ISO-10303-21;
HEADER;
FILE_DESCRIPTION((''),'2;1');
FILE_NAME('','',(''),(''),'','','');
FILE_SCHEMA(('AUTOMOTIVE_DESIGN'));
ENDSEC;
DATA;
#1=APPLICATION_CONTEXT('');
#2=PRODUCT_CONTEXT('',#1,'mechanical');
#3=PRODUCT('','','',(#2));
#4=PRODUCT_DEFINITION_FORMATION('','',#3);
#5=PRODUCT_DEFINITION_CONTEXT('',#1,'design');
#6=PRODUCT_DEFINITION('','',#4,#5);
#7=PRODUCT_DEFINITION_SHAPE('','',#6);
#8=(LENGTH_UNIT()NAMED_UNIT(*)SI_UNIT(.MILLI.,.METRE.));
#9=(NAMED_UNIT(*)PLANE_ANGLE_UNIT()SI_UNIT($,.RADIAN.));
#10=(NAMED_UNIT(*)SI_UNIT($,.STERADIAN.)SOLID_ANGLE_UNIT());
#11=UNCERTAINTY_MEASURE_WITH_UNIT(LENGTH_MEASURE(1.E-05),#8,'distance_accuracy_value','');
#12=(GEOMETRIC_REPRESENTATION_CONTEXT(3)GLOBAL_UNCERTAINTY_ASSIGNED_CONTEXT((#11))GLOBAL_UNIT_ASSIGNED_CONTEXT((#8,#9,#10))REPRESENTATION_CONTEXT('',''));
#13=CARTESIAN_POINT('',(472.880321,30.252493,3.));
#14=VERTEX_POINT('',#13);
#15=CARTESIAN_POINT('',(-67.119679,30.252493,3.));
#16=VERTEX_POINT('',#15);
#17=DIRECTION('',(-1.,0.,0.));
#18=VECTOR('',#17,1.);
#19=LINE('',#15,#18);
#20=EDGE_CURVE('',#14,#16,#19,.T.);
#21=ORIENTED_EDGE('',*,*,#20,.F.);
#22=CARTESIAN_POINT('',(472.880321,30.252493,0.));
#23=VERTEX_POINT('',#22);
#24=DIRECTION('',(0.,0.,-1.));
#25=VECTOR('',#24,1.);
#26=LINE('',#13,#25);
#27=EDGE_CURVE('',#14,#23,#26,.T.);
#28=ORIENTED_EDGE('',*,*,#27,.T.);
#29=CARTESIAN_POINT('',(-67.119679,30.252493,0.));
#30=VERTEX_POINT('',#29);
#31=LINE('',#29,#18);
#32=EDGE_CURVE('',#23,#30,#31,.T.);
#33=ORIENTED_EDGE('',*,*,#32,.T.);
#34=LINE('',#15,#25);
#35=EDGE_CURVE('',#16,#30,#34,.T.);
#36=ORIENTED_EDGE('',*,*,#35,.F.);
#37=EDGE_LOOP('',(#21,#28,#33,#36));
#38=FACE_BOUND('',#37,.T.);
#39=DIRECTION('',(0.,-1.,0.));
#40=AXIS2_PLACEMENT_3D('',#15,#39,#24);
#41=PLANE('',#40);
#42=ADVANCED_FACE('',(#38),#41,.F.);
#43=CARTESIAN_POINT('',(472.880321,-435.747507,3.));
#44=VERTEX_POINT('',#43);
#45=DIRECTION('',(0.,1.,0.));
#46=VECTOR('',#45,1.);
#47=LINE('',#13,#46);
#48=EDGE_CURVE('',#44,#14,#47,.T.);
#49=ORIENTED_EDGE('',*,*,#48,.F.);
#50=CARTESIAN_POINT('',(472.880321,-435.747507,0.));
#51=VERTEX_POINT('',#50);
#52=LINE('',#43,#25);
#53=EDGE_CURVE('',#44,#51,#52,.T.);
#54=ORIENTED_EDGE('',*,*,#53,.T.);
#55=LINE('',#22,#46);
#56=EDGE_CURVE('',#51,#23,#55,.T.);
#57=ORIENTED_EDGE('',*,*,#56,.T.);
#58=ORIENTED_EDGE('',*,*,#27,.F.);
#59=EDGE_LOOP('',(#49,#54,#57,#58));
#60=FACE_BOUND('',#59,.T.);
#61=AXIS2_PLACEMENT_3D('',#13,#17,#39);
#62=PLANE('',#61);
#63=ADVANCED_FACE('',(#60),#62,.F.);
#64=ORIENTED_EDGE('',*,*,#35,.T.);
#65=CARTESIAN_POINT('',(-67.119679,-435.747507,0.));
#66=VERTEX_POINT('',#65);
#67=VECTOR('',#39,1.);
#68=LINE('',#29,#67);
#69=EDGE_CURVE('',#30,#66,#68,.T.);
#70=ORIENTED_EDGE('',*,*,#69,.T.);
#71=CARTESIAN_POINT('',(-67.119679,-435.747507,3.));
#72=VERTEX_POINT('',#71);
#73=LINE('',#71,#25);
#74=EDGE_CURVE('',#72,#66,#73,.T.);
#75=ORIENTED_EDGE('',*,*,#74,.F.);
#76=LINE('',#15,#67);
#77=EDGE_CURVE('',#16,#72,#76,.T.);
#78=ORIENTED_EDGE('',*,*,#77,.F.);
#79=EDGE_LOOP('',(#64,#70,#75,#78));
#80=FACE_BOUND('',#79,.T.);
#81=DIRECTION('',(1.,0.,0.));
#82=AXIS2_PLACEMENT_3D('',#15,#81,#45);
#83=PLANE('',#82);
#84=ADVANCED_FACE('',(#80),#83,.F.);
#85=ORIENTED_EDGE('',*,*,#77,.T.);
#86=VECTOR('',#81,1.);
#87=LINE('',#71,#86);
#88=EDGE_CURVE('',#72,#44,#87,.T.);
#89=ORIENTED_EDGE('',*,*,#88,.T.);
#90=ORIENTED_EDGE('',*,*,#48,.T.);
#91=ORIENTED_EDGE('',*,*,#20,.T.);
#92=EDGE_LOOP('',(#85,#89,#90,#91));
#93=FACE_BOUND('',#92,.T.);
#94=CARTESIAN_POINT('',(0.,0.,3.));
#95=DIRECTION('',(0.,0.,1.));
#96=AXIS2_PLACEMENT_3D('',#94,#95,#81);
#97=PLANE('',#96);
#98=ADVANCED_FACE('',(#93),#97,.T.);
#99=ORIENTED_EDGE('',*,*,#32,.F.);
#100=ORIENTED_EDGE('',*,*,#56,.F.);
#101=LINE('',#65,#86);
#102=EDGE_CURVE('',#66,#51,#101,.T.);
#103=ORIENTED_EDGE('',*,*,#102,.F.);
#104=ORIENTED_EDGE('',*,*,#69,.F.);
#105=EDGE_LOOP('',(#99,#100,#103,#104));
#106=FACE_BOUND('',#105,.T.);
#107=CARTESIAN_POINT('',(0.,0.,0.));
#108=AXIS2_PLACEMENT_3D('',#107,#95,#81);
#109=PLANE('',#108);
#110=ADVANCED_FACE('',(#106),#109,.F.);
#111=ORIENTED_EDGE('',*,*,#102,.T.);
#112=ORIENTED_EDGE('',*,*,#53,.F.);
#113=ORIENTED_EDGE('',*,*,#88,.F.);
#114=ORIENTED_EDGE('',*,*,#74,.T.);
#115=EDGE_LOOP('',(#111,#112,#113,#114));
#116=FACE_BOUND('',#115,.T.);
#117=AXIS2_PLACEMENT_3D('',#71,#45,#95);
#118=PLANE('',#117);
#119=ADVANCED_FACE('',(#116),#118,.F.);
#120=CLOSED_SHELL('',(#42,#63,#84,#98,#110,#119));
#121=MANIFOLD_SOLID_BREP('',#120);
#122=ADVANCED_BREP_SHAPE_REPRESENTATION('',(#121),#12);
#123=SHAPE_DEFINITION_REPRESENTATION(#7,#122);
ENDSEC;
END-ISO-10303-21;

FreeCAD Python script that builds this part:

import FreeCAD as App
import Part
import Sketcher

V = App.Vector
Q = App.Units.Quantity


def add_polygon(sketch, points):
    """Adds a closed chain of lines whose ends are joined by coincident constraints."""
    first, n = sketch.GeometryCount, len(points)
    for a, b in zip(points, points[1:] + points[:1]):
        sketch.addGeometry(Part.LineSegment(App.Vector(*a, 0), App.Vector(*b, 0)), False)
    for i in range(n):
        sketch.addConstraint(Sketcher.Constraint("Coincident", first + i, 2, first + (i + 1) % n, 1))

doc = App.newDocument("Part")
body = doc.addObject("PartDesign::Body", "Body")

# Sketch on XY plane
sketch1 = body.newObject("Sketcher::SketchObject", "Sketch")
sketch1.AttachmentSupport = (doc.getObject("XY_Plane"), [""])
sketch1.MapMode = "FlatFace"
add_polygon(sketch1, [(-67, 30), (-67, -436), (473, -436), (473, 30)])  # lines 0-3
sketch1.addConstraint([
    Sketcher.Constraint("Vertical", 0),
    Sketcher.Constraint("Horizontal", 1),
    Sketcher.Constraint("Vertical", 2),
    Sketcher.Constraint("Horizontal", 3),
    Sketcher.Constraint("DistanceX", 1, 1, 1, 2, Q("540 mm")),
    Sketcher.Constraint("DistanceY", 0, 2, 0, 1, Q("466 mm")),
    Sketcher.Constraint("DistanceX", 0, 2, -1, 1, Q("67.119679 mm")),
    Sketcher.Constraint("DistanceY", 0, 2, -1, 1, Q("435.747507 mm")),
])
pad1 = body.newObject("PartDesign::Pad", "Pad")
pad1.Profile = sketch1
pad1.Length = 3

doc.recompute()
